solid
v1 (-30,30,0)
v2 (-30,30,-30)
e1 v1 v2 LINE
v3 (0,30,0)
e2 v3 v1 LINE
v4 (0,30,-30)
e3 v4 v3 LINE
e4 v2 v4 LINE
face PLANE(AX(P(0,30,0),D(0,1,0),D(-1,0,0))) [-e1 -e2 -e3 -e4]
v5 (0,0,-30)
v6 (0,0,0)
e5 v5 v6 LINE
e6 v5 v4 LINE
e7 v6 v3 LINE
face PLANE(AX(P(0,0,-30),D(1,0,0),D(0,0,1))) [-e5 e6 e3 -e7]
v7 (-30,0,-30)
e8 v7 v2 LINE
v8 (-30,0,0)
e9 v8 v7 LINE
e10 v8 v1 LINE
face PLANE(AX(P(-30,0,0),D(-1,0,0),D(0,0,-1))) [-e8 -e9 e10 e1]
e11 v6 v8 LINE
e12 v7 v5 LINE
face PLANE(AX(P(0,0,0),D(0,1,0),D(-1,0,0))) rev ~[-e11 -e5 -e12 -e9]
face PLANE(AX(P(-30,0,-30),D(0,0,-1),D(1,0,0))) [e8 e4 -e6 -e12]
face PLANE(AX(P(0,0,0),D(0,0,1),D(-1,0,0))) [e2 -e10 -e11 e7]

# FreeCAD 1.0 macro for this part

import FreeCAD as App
import Part
import Sketcher
Q = App.Units.Quantity

doc = App.newDocument("Part")
body = doc.addObject("PartDesign::Body", "Body")

sketch1 = body.newObject("Sketcher::SketchObject", "Sketch")
sketch1.AttachmentSupport = (doc.getObject("XZ_Plane"), [""])
sketch1.MapMode = "FlatFace"
sketch1.addGeometry([
    Part.LineSegment(App.Vector(-30, 0, 0), App.Vector(0, 0, 0)),
    Part.LineSegment(App.Vector(0, 0, 0), App.Vector(0, -30, 0)),
    Part.LineSegment(App.Vector(0, -30, 0), App.Vector(-30, -30, 0)),
    Part.LineSegment(App.Vector(-30, -30, 0), App.Vector(-30, 0, 0)),
], False)
sketch1.addConstraint([
    Sketcher.Constraint("Coincident", 0, 2, 1, 1),
    Sketcher.Constraint("Coincident", 1, 2, 2, 1),
    Sketcher.Constraint("Coincident", 2, 2, 3, 1),
    Sketcher.Constraint("Coincident", 3, 2, 0, 1),
    Sketcher.Constraint("Horizontal", 0),
    Sketcher.Constraint("Vertical", 1),
    Sketcher.Constraint("Horizontal", 2),
    Sketcher.Constraint("Vertical", 3),
    Sketcher.Constraint("Coincident", 0, 2, -1, 1),
    Sketcher.Constraint("Equal", 2, 1),
    Sketcher.Constraint("DistanceX", 0, 1, 0, 2, Q("30 mm")),
])
pad1 = body.newObject("PartDesign::Pad", "Pad")
pad1.Profile = sketch1
pad1.Length = 30
pad1.Reversed = True

doc.recompute()
